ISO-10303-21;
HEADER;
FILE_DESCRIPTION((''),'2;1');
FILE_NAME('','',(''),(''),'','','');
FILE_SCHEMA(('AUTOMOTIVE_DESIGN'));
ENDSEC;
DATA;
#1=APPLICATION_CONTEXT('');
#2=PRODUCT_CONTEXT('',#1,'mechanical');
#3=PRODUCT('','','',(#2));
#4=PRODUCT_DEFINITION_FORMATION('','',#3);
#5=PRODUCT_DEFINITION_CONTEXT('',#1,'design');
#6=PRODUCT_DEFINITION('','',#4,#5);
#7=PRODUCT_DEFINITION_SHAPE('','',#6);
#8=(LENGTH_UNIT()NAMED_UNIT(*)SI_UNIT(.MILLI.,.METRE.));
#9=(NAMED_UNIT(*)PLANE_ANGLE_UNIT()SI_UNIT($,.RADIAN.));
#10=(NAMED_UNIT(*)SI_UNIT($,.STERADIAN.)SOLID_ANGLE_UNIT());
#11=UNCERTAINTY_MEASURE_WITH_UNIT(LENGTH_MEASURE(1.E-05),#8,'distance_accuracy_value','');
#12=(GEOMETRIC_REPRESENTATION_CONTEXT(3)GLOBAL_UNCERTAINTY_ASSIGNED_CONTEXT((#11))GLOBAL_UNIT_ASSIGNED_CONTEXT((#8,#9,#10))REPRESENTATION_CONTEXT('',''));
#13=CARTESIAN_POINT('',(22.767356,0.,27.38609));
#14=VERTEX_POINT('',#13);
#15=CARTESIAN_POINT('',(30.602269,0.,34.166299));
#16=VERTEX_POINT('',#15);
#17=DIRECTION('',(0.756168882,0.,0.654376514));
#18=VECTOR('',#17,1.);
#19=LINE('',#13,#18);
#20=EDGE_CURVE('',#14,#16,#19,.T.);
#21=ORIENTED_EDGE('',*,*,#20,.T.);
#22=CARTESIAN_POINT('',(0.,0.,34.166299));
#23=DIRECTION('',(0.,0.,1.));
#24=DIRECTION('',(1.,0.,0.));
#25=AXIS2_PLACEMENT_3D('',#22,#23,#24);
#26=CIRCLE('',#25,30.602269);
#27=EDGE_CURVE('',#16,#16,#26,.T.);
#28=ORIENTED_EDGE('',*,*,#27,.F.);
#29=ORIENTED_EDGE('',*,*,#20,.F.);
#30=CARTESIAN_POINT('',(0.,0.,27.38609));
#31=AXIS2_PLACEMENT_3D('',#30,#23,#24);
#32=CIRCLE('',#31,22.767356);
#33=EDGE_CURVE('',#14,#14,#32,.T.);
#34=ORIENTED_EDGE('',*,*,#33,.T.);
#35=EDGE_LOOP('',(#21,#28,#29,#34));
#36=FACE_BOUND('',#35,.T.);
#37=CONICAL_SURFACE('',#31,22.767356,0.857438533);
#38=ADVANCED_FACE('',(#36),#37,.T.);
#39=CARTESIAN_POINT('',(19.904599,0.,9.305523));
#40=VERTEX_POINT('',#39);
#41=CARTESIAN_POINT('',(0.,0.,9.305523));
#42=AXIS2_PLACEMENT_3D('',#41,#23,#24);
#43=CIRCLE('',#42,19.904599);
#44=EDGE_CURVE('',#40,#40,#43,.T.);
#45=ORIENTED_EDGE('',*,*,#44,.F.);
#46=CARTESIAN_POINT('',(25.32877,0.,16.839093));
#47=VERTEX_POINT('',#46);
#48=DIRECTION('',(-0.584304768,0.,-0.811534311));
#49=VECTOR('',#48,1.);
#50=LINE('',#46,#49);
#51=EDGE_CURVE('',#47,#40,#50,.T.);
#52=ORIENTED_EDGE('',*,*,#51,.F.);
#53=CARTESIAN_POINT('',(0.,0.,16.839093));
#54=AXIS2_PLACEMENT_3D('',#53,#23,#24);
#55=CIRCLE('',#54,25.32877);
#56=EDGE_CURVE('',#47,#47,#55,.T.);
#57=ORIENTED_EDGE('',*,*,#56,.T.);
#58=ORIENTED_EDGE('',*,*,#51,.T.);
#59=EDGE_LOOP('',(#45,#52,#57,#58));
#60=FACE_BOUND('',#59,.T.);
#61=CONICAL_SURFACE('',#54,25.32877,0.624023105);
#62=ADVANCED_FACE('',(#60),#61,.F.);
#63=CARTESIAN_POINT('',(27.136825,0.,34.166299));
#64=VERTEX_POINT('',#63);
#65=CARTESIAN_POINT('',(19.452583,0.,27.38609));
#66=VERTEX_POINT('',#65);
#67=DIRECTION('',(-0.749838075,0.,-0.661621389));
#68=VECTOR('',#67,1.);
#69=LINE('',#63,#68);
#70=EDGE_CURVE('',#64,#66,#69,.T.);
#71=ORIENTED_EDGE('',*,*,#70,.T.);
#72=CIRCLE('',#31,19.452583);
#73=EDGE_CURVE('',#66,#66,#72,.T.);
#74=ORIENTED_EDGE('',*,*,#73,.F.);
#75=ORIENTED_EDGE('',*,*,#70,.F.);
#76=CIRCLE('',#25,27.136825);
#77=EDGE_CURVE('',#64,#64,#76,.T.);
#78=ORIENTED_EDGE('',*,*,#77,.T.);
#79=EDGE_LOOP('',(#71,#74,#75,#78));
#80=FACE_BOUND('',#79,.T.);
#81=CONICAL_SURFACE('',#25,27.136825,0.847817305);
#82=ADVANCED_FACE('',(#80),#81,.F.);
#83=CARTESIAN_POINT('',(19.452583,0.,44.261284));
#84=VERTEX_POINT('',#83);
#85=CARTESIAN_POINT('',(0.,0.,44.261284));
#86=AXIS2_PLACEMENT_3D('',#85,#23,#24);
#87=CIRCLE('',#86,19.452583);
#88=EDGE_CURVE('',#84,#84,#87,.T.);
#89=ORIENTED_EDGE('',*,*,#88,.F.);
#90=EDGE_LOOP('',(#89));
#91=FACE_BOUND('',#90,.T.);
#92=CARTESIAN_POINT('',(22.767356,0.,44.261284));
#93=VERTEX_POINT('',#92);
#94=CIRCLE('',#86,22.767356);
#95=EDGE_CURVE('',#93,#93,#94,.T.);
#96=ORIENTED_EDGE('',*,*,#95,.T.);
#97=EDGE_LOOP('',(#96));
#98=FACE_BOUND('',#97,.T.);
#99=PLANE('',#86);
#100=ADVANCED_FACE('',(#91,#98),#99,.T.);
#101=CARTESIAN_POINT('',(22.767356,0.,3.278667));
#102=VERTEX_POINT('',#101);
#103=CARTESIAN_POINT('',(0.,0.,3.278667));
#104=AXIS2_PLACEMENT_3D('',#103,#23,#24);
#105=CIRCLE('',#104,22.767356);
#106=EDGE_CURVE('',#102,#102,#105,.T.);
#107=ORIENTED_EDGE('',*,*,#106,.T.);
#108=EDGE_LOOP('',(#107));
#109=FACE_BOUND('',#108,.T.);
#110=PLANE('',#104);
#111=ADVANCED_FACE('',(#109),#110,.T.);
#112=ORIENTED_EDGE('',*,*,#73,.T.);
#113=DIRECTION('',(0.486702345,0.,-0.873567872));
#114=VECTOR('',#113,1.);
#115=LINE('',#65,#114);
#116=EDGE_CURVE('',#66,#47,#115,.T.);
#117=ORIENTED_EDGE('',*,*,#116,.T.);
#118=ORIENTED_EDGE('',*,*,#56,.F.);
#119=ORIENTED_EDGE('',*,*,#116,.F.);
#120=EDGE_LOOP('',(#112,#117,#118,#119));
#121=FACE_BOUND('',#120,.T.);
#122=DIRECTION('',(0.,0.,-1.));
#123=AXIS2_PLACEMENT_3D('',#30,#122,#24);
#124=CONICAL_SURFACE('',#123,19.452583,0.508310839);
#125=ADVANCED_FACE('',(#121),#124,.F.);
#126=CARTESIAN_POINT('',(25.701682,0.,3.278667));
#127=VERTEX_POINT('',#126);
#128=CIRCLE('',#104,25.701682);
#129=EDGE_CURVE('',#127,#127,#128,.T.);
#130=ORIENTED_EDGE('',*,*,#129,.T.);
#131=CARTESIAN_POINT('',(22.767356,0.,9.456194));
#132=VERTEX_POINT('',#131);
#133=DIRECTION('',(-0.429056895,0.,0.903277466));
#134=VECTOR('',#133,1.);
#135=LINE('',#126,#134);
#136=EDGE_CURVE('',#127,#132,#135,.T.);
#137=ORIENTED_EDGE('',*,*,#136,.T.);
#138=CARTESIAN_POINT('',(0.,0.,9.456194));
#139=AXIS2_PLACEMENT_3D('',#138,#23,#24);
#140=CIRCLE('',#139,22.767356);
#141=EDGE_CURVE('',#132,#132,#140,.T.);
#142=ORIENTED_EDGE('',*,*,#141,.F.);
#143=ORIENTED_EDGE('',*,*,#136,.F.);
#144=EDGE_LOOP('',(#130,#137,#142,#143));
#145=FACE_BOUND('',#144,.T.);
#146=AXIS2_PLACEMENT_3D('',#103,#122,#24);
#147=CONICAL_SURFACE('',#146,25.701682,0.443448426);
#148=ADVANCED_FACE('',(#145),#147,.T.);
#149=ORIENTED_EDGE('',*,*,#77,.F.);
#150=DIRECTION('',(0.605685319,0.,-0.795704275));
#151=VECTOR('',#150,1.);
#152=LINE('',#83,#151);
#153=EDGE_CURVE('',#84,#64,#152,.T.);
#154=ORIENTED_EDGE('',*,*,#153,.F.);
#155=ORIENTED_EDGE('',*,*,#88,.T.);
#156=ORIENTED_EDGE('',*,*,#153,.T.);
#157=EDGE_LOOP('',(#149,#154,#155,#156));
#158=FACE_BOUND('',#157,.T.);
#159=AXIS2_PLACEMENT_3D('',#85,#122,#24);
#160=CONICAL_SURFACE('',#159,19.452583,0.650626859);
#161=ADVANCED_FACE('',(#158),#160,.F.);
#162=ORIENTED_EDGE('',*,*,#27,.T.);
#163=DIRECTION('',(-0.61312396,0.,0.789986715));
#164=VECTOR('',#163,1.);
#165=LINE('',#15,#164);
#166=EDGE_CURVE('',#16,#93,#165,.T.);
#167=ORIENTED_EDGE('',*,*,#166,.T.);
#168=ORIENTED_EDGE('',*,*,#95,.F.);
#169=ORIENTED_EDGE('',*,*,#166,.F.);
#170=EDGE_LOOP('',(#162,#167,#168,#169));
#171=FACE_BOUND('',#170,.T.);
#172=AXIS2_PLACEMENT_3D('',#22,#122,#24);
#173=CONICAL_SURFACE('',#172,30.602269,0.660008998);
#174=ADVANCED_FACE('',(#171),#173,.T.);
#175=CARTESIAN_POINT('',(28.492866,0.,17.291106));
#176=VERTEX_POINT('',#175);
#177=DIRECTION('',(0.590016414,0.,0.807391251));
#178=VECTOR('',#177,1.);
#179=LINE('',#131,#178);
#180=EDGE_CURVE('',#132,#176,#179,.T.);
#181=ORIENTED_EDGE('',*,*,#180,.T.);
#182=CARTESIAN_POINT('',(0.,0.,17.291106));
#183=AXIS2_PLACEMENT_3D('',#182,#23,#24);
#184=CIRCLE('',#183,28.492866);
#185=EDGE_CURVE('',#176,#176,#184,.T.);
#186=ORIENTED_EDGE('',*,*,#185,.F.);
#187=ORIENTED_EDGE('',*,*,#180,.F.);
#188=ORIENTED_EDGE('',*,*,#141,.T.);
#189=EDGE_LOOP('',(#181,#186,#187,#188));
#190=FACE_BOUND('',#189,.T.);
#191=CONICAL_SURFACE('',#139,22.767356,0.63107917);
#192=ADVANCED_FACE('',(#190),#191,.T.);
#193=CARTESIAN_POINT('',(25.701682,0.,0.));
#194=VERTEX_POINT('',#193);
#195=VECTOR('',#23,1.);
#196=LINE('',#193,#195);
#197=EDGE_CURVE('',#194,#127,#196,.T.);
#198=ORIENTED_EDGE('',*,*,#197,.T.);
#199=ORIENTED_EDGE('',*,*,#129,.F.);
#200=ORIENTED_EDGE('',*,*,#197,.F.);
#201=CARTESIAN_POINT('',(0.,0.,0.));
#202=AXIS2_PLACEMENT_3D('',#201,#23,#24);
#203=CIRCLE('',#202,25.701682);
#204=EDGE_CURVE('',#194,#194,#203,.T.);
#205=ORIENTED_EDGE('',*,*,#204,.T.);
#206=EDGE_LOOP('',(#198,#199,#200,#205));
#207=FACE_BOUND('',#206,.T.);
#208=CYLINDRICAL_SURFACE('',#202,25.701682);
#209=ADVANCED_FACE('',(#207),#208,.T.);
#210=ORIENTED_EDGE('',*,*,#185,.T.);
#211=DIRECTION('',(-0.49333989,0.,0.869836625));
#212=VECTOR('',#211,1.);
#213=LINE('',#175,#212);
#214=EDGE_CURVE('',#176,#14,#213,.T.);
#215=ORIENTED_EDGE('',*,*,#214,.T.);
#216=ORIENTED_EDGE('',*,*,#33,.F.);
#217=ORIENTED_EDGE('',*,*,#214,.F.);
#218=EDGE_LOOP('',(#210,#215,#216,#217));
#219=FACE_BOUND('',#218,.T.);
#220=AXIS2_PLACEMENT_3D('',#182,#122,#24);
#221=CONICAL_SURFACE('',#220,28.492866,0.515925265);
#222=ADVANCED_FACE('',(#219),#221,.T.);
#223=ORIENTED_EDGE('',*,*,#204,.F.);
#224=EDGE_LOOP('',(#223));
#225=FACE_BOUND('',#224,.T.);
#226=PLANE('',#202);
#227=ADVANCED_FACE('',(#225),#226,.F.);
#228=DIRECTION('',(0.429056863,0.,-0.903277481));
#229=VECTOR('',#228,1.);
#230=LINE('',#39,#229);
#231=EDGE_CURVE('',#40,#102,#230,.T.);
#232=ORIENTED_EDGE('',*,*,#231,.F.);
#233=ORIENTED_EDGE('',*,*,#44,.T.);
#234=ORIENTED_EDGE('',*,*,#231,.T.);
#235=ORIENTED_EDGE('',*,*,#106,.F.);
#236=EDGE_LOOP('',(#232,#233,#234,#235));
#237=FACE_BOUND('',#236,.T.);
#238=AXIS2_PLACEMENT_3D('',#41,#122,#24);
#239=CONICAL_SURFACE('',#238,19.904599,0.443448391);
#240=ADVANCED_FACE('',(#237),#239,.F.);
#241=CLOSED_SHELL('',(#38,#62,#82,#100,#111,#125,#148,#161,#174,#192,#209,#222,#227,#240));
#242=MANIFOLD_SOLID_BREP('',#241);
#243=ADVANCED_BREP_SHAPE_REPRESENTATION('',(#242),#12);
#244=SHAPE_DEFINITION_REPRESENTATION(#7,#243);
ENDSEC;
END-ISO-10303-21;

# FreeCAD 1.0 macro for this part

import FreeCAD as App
import Part
import Sketcher


def add_polygon(sketch, points):
    """Adds a closed chain of lines whose ends are joined by coincident constraints."""
    first, n = sketch.GeometryCount, len(points)
    for a, b in zip(points, points[1:] + points[:1]):
        sketch.addGeometry(Part.LineSegment(App.Vector(*a, 0), App.Vector(*b, 0)), False)
    for i in range(n):
        sketch.addConstraint(Sketcher.Constraint("Coincident", first + i, 2, first + (i + 1) % n, 1))

doc = App.newDocument("Part")
body = doc.addObject("PartDesign::Body", "Body")

sketch1 = body.newObject("Sketcher::SketchObject", "Sketch")
sketch1.AttachmentSupport = (doc.getObject("XZ_Plane"), [""])
sketch1.MapMode = "FlatFace"
add_polygon(sketch1, [(22.8, 3.3), (0, 3.3), (0, 0), (25.7, 0), (25.7, 3.3), (22.8, 9.5), (28.5, 17.3), (22.8, 27.4), (30.6, 34.2), (22.8, 44.3), (19.5, 44.3), (27.1, 34.2), (19.5, 27.4), (25.3, 16.8), (19.9, 9.3)])
sketch1.addConstraint([
    Sketcher.Constraint("Horizontal", 0),
    Sketcher.Constraint("Vertical", 1),
    Sketcher.Constraint("Horizontal", 2),
    Sketcher.Constraint("Vertical", 3),
    Sketcher.Constraint("Horizontal", 9),
    Sketcher.Constraint("Coincident", 1, 2, -1, 1),
    Sketcher.Constraint("Parallel", 4, 14),
    Sketcher.Constraint("Horizontal", 0, 2, 3, 2),
    Sketcher.Constraint("Horizontal", 7, 2, 10, 2),
    Sketcher.Constraint("Horizontal", 6, 2, 11, 2),
    Sketcher.Constraint("Vertical", 4, 2, 6, 2),
    Sketcher.Constraint("Vertical", 6, 2, 8, 2),
    Sketcher.Constraint("Vertical", 9, 2, 11, 2),
    Sketcher.Constraint("Vertical", 8, 2, 14, 2),
    Sketcher.Constraint("DistanceY", -1, 1, 7, 2, 34.166299),
    Sketcher.Constraint("DistanceX", -1, 1, 13, 2, 19.904599),
    Sketcher.Constraint("DistanceY", 4, 2, 12, 2, 7.382899),
    Sketcher.Constraint("Distance", 6, 11.605609),
    Sketcher.Constraint("Distance", 11, 10.247869),
    Sketcher.Constraint("Distance", 12, 12.073472),
    Sketcher.Constraint("Distance", 13, 9.28312),
    Sketcher.Constraint("Distance", 14, 6.672209),
    Sketcher.Constraint("DistanceX", 0, 2, 0, 1, 22.767356),
    Sketcher.Constraint("DistanceX", 2, 1, 2, 2, 25.701682),
    Sketcher.Constraint("DistanceX", 9, 2, 9, 1, 3.314773),
    Sketcher.Constraint("DistanceY", 1, 2, 1, 1, 3.278667),
    Sketcher.Constraint("DistanceX", -1, 1, 7, 2, 30.602269),
    Sketcher.Constraint("DistanceX", 4, 2, 5, 2, 5.72551),
    Sketcher.Constraint("DistanceY", 5, 2, 8, 2, 26.970178),
])
revolution = body.newObject("PartDesign::Revolution", "Revolution")
revolution.Profile = sketch1
revolution.ReferenceAxis = (sketch1, ["V_Axis"])
revolution.Angle = 360

doc.recompute()
